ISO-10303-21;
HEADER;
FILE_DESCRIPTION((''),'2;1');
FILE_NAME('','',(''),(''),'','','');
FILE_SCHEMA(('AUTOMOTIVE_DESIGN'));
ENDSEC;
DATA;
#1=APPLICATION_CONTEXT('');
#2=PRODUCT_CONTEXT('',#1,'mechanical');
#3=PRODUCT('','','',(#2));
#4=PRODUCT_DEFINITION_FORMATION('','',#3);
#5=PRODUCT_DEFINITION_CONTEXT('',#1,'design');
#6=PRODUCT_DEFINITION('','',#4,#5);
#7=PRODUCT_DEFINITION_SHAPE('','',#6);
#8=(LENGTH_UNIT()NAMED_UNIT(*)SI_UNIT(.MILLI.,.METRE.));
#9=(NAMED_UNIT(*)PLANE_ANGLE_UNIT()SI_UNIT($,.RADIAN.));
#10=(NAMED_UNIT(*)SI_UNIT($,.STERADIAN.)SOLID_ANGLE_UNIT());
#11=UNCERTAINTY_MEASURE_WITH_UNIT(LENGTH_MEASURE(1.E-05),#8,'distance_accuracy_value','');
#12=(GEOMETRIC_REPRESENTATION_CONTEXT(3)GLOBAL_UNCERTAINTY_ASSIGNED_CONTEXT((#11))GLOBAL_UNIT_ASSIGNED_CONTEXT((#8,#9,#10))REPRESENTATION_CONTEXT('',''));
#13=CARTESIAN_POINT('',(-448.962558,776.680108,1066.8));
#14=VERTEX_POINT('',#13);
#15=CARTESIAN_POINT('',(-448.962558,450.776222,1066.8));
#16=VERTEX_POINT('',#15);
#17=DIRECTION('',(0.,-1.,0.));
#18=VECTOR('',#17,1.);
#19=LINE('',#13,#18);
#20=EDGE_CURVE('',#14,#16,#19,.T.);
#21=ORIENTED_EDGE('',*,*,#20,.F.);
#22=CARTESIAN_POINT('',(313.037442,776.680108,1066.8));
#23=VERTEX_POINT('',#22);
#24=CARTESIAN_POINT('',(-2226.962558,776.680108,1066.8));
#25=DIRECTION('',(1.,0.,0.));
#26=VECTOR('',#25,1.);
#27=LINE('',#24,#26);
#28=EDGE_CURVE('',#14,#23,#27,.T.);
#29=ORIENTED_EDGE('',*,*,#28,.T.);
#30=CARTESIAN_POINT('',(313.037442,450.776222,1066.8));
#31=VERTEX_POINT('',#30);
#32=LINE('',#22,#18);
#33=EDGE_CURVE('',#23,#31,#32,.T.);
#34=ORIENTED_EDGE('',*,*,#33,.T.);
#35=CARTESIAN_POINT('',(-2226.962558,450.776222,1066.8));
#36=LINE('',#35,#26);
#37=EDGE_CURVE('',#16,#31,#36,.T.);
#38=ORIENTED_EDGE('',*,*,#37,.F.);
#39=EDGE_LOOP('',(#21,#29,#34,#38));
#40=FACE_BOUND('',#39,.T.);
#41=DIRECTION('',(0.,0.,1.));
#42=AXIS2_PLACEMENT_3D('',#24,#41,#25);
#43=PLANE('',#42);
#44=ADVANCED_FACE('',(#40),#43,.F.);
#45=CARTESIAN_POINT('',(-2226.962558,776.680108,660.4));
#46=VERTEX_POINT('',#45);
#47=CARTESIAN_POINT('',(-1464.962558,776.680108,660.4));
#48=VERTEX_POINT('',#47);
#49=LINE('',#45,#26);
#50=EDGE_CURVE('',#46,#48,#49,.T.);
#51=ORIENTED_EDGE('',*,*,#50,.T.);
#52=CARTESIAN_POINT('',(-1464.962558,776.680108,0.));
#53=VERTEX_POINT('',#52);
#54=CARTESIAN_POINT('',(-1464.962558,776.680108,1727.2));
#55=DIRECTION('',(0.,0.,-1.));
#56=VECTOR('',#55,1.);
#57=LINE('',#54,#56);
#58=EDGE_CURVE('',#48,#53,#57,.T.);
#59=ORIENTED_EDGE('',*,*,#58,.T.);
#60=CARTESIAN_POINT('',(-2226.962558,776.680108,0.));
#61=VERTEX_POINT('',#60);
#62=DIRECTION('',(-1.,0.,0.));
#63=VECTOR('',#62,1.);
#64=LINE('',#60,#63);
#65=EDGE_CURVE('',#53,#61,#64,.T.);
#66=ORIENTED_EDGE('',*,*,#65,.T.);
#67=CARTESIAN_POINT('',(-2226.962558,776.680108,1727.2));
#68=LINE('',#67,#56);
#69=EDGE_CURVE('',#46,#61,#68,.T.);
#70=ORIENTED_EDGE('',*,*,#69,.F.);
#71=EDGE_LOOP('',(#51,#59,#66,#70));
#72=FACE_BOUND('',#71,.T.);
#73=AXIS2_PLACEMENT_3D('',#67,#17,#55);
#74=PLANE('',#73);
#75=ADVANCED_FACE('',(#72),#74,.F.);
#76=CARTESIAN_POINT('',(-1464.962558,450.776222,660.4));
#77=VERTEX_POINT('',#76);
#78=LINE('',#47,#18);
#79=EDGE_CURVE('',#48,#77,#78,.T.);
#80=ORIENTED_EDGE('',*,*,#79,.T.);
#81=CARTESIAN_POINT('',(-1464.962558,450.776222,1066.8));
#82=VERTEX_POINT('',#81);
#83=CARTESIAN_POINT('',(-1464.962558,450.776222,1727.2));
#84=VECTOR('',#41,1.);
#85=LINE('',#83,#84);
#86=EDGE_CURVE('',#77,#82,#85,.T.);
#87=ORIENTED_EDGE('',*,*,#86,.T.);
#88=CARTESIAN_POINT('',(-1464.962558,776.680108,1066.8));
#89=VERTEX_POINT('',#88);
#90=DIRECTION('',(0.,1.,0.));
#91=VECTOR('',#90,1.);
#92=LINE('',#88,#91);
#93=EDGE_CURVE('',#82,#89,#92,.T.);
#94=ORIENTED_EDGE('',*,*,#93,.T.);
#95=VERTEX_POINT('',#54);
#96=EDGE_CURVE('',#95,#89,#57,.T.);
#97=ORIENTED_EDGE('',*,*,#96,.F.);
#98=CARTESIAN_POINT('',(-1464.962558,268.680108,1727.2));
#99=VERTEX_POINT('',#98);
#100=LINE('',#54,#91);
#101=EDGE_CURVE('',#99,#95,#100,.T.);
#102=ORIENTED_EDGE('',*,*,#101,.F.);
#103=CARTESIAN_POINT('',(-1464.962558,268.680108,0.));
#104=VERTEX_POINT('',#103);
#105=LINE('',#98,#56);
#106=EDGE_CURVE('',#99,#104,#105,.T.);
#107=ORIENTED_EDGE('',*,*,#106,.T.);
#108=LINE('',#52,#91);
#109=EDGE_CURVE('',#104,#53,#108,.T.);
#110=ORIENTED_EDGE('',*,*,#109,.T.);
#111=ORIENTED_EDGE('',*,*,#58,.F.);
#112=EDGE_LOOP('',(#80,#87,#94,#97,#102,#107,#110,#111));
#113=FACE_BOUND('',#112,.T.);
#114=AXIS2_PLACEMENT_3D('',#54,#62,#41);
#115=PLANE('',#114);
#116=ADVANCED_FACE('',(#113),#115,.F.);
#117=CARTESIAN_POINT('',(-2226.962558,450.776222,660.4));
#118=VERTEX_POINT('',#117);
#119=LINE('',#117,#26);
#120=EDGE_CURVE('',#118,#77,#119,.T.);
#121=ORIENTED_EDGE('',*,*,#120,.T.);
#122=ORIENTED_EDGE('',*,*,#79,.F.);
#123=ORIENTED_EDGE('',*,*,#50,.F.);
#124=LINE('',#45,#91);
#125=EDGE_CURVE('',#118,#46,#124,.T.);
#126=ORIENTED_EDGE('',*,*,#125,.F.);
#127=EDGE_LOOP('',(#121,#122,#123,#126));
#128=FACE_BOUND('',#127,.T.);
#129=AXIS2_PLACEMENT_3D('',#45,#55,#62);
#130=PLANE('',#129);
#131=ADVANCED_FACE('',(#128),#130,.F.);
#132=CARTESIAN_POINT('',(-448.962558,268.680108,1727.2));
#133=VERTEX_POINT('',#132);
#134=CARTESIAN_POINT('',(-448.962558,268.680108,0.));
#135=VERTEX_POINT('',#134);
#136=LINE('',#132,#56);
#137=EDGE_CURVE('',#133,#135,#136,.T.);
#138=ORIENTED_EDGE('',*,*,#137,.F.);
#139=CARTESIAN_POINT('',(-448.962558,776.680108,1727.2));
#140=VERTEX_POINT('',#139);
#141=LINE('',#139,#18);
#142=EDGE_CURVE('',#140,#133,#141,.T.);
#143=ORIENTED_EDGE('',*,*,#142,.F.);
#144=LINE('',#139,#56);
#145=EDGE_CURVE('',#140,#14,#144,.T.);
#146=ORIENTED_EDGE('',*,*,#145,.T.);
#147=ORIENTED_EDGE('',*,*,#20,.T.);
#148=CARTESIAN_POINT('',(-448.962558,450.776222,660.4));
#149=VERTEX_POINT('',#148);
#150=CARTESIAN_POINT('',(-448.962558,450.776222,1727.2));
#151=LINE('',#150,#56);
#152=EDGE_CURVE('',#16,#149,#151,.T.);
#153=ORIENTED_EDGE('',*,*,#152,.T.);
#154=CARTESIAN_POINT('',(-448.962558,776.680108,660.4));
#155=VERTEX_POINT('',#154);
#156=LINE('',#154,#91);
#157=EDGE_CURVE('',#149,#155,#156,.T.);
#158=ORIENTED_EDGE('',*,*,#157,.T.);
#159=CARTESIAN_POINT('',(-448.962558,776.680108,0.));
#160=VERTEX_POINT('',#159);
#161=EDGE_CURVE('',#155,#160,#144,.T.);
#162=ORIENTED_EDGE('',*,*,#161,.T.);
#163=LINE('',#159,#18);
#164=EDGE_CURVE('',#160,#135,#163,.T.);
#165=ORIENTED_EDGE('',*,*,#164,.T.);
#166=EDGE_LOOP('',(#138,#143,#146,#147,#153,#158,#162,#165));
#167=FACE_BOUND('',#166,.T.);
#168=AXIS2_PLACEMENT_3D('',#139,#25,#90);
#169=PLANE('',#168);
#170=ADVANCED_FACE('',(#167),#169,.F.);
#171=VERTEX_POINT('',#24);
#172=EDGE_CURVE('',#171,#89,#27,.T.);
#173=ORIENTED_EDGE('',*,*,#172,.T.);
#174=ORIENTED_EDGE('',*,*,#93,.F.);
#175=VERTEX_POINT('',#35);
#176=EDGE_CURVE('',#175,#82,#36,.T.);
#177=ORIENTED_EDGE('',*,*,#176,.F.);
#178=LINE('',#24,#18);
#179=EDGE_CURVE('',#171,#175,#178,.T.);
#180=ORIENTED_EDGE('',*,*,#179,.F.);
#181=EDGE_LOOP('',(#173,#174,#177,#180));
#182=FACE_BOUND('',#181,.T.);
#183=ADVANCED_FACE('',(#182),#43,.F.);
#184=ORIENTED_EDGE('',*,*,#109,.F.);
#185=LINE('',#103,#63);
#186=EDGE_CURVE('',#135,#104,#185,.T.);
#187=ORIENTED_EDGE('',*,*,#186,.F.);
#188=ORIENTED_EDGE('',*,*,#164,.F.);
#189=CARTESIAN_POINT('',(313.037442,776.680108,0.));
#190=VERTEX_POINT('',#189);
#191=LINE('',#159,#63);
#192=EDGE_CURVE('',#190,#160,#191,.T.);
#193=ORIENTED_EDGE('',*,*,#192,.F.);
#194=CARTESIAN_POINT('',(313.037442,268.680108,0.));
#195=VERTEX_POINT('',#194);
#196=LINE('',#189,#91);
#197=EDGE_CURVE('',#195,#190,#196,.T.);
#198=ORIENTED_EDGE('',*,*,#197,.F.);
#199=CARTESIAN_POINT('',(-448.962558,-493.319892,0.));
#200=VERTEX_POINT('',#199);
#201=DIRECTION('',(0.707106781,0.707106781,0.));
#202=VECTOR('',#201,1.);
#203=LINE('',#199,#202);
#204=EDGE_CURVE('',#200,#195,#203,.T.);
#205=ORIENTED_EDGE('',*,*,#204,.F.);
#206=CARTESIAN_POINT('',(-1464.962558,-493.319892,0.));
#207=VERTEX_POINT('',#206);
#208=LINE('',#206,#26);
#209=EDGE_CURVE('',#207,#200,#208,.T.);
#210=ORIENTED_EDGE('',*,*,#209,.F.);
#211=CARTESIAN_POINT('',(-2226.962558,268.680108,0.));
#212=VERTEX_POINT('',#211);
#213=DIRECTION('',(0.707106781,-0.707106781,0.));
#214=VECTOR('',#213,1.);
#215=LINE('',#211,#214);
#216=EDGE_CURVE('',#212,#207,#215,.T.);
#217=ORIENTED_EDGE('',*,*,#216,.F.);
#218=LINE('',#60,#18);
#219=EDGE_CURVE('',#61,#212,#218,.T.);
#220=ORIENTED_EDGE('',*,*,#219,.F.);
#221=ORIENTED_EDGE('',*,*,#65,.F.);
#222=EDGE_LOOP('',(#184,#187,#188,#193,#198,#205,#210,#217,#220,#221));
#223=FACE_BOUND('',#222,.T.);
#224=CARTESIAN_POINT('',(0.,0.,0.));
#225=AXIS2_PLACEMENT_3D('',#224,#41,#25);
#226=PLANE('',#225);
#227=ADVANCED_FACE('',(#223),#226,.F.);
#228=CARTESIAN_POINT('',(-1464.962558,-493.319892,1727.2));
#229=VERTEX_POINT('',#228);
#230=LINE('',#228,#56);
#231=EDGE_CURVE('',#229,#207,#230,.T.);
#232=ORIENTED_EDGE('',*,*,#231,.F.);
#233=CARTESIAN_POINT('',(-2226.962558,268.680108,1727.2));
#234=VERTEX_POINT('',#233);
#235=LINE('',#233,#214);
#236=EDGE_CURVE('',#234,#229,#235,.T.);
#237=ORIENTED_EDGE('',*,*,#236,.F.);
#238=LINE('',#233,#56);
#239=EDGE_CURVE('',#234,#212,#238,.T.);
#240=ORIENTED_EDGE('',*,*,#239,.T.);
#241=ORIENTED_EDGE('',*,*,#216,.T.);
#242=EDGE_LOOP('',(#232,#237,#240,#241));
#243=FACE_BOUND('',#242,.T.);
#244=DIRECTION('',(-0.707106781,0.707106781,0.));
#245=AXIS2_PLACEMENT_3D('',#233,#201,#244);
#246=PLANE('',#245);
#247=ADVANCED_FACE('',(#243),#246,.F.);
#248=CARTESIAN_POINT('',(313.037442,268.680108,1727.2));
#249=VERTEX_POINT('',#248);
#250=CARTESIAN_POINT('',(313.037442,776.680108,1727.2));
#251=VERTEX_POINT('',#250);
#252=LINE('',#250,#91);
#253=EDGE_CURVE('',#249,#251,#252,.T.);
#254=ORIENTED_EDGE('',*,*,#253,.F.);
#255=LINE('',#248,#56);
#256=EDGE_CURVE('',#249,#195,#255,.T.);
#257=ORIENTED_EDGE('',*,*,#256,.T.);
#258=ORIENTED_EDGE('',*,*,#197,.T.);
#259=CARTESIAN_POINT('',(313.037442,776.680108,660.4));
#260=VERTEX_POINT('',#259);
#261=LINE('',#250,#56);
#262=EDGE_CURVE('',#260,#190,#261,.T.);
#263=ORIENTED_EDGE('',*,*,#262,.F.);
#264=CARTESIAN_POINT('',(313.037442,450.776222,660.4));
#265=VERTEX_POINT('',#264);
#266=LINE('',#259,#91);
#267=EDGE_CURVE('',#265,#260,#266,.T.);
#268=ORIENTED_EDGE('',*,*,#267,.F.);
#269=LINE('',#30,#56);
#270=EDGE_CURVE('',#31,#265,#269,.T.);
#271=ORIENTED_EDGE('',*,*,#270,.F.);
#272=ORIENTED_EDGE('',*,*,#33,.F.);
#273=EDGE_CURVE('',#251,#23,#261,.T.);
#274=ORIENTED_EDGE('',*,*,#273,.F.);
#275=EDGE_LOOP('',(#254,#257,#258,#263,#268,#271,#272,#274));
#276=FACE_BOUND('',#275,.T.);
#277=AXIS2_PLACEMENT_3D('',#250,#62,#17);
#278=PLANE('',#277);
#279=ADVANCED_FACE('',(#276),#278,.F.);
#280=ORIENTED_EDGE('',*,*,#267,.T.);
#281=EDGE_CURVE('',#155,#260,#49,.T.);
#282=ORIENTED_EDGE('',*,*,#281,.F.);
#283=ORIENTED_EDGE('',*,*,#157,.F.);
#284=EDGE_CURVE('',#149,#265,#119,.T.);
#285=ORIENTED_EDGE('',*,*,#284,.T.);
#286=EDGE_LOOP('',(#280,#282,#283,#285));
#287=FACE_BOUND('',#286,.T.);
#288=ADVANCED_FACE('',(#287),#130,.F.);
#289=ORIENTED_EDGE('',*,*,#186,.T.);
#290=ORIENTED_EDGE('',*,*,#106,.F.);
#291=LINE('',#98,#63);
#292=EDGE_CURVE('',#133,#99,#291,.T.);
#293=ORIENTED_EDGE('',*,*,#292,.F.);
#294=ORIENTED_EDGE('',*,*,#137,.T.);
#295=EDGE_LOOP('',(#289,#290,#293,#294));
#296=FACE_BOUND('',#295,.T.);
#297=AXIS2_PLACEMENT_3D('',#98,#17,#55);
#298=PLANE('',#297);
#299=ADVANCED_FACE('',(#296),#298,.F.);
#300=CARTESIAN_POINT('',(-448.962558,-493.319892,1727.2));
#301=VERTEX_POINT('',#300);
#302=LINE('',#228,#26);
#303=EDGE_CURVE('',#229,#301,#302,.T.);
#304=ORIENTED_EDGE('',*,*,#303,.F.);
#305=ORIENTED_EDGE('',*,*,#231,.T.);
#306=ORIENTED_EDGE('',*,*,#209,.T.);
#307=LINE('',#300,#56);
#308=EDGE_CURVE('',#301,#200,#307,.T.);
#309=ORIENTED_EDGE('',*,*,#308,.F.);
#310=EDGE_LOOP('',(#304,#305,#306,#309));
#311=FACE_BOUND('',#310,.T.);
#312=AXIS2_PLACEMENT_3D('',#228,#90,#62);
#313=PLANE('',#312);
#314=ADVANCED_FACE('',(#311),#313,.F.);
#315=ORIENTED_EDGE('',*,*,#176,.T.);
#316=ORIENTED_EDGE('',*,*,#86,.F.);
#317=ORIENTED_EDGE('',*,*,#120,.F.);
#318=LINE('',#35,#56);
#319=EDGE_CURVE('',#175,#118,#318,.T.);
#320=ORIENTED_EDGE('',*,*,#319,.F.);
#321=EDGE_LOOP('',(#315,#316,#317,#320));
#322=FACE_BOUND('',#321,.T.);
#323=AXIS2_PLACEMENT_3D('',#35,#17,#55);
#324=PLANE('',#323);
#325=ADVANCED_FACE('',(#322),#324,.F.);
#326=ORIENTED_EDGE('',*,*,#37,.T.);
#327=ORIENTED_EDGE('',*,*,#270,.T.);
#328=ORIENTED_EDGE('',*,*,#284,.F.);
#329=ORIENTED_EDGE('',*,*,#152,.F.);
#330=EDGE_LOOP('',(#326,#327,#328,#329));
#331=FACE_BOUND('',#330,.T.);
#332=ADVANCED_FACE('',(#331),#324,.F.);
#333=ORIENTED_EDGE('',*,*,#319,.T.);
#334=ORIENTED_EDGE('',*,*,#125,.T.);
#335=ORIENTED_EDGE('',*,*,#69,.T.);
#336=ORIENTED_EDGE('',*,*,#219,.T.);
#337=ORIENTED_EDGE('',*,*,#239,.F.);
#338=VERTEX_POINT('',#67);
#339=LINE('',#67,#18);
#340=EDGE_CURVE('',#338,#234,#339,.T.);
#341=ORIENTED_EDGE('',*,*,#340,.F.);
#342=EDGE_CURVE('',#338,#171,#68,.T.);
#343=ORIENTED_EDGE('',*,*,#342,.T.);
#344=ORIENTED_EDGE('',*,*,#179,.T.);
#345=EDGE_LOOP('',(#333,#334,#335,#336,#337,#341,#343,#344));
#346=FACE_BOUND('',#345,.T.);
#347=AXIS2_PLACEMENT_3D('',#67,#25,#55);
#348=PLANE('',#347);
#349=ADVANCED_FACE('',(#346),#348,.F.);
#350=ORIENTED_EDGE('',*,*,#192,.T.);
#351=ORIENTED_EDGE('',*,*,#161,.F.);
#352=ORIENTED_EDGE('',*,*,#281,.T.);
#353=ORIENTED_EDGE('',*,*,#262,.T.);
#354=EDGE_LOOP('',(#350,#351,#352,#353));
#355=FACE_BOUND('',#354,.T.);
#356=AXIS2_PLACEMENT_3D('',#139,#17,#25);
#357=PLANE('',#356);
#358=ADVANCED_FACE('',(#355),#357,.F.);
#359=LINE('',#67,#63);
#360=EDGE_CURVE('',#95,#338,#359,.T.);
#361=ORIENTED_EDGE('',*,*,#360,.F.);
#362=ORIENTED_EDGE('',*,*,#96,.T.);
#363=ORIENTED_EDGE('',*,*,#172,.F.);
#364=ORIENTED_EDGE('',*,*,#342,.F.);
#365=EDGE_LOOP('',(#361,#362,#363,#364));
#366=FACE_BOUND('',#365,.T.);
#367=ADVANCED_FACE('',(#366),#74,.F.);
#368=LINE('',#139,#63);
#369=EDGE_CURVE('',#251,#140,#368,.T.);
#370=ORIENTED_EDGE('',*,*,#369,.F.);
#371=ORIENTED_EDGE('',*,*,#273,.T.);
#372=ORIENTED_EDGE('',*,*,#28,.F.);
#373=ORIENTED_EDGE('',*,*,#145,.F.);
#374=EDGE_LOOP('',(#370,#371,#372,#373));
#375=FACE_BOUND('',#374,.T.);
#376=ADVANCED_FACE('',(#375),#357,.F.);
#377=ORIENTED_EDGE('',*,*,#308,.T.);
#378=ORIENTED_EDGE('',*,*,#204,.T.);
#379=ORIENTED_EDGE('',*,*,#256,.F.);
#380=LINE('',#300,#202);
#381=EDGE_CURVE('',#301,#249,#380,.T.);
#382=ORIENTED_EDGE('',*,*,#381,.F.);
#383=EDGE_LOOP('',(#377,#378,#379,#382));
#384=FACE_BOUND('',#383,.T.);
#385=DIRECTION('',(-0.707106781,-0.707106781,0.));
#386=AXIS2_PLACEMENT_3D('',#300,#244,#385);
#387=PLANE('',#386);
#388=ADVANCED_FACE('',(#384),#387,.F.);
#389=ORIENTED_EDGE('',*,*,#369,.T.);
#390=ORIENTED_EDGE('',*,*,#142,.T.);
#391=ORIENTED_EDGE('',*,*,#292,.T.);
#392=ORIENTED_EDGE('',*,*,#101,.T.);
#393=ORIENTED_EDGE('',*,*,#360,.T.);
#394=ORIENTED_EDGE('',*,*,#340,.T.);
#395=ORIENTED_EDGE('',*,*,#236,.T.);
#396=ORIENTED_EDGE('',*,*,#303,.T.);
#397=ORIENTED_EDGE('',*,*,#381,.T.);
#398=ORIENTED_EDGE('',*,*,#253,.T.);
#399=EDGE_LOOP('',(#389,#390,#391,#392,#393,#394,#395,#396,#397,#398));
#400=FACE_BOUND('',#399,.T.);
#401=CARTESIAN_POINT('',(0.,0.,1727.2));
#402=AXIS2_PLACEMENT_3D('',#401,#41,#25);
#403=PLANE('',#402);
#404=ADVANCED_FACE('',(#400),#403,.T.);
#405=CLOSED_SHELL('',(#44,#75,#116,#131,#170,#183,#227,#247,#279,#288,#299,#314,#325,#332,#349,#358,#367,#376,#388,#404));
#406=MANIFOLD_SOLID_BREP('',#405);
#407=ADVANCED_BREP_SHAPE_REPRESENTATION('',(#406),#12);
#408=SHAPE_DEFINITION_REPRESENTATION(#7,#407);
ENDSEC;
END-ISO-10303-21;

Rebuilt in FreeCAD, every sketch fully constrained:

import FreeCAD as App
import Part
import Sketcher

V = App.Vector
Q = App.Units.Quantity


def add_polygon(sketch, points):
    """Adds a closed chain of lines whose ends are joined by coincident constraints."""
    first, n = sketch.GeometryCount, len(points)
    for a, b in zip(points, points[1:] + points[:1]):
        sketch.addGeometry(Part.LineSegment(App.Vector(*a, 0), App.Vector(*b, 0)), False)
    for i in range(n):
        sketch.addConstraint(Sketcher.Constraint("Coincident", first + i, 2, first + (i + 1) % n, 1))

doc = App.newDocument("Part")
body = doc.addObject("PartDesign::Body", "Body")

sketch1 = body.newObject("Sketcher::SketchObject", "Sketch")
sketch1.AttachmentSupport = (doc.getObject("XY_Plane"), [""])
sketch1.MapMode = "FlatFace"
add_polygon(sketch1, [(313, 777), (-449, 777), (-449, 269), (-1465, 269), (-1465, 777), (-2227, 777), (-2227, 269), (-1465, -493), (-449, -493), (313, 269)])
sketch1.addConstraint(Sketcher.Constraint("Horizontal", 0))
sketch1.addConstraint(Sketcher.Constraint("Vertical", 1))
sketch1.addConstraint(Sketcher.Constraint("Horizontal", 2))
sketch1.addConstraint(Sketcher.Constraint("Vertical", 3))
sketch1.addConstraint(Sketcher.Constraint("Horizontal", 4))
sketch1.addConstraint(Sketcher.Constraint("Vertical", 5))
sketch1.addConstraint(Sketcher.Constraint("Horizontal", 7))
sketch1.addConstraint(Sketcher.Constraint("Vertical", 9))
sketch1.addConstraint(Sketcher.Constraint("Perpendicular", 6, 8))
sketch1.addConstraint(Sketcher.Constraint("Horizontal", 0, 2, 3, 2))
sketch1.addConstraint(Sketcher.Constraint("Horizontal", 2, 2, 5, 2))
sketch1.addConstraint(Sketcher.Constraint("Horizontal", 5, 2, 8, 2))
sketch1.addConstraint(Sketcher.Constraint("Vertical", 3, 2, 6, 2))
sketch1.addConstraint(Sketcher.Constraint("Vertical", 1, 2, 7, 2))
sketch1.addConstraint(Sketcher.Constraint("Equal", 0, 4))
sketch1.addConstraint(Sketcher.Constraint("DistanceX", 0, 2, 0, 1, Q("30 in")))
sketch1.addConstraint(Sketcher.Constraint("DistanceX", 2, 2, 2, 1, Q("40 in")))
sketch1.addConstraint(Sketcher.Constraint("DistanceY", 1, 2, 1, 1, Q("20 in")))
sketch1.addConstraint(Sketcher.Constraint("DistanceX", 0, 2, -1, 1, Q("448.962558 mm")))
sketch1.addConstraint(Sketcher.Constraint("DistanceY", -1, 1, 0, 2, Q("776.680108 mm")))
pad1 = body.newObject("PartDesign::Pad", "Pad")
pad1.Profile = sketch1
pad1.Length = Q("68 in")

sketch2 = body.newObject("Sketcher::SketchObject", "Sketch001")
sketch2.AttachmentSupport = (doc.getObject("YZ_Plane"), [""])
sketch2.MapMode = "FlatFace"
sketch2.AttachmentOffset = App.Placement(V(0, 0, 313.037442), App.Rotation())
add_polygon(sketch2, [(777, 1067), (451, 1067), (451, 660), (777, 660)])
sketch2.addConstraint(Sketcher.Constraint("Horizontal", 0))
sketch2.addConstraint(Sketcher.Constraint("Vertical", 1))
sketch2.addConstraint(Sketcher.Constraint("Horizontal", 2))
sketch2.addConstraint(Sketcher.Constraint("Vertical", 3))
sketch2.addConstraint(Sketcher.Constraint("DistanceY", 1, 2, 1, 1, Q("16 in")))
sketch2.addConstraint(Sketcher.Constraint("DistanceY", -1, 1, 0, 2, Q("42 in")))
sketch2.addConstraint(Sketcher.Constraint("DistanceX", 0, 2, 0, 1, Q("325.903886 mm")))
sketch2.addConstraint(Sketcher.Constraint("DistanceX", -1, 1, 0, 2, Q("450.776222 mm")))
pocket1 = body.newObject("PartDesign::Pocket", "Pocket")
pocket1.Profile = sketch2
pocket1.Type = "ThroughAll"

doc.recompute()
